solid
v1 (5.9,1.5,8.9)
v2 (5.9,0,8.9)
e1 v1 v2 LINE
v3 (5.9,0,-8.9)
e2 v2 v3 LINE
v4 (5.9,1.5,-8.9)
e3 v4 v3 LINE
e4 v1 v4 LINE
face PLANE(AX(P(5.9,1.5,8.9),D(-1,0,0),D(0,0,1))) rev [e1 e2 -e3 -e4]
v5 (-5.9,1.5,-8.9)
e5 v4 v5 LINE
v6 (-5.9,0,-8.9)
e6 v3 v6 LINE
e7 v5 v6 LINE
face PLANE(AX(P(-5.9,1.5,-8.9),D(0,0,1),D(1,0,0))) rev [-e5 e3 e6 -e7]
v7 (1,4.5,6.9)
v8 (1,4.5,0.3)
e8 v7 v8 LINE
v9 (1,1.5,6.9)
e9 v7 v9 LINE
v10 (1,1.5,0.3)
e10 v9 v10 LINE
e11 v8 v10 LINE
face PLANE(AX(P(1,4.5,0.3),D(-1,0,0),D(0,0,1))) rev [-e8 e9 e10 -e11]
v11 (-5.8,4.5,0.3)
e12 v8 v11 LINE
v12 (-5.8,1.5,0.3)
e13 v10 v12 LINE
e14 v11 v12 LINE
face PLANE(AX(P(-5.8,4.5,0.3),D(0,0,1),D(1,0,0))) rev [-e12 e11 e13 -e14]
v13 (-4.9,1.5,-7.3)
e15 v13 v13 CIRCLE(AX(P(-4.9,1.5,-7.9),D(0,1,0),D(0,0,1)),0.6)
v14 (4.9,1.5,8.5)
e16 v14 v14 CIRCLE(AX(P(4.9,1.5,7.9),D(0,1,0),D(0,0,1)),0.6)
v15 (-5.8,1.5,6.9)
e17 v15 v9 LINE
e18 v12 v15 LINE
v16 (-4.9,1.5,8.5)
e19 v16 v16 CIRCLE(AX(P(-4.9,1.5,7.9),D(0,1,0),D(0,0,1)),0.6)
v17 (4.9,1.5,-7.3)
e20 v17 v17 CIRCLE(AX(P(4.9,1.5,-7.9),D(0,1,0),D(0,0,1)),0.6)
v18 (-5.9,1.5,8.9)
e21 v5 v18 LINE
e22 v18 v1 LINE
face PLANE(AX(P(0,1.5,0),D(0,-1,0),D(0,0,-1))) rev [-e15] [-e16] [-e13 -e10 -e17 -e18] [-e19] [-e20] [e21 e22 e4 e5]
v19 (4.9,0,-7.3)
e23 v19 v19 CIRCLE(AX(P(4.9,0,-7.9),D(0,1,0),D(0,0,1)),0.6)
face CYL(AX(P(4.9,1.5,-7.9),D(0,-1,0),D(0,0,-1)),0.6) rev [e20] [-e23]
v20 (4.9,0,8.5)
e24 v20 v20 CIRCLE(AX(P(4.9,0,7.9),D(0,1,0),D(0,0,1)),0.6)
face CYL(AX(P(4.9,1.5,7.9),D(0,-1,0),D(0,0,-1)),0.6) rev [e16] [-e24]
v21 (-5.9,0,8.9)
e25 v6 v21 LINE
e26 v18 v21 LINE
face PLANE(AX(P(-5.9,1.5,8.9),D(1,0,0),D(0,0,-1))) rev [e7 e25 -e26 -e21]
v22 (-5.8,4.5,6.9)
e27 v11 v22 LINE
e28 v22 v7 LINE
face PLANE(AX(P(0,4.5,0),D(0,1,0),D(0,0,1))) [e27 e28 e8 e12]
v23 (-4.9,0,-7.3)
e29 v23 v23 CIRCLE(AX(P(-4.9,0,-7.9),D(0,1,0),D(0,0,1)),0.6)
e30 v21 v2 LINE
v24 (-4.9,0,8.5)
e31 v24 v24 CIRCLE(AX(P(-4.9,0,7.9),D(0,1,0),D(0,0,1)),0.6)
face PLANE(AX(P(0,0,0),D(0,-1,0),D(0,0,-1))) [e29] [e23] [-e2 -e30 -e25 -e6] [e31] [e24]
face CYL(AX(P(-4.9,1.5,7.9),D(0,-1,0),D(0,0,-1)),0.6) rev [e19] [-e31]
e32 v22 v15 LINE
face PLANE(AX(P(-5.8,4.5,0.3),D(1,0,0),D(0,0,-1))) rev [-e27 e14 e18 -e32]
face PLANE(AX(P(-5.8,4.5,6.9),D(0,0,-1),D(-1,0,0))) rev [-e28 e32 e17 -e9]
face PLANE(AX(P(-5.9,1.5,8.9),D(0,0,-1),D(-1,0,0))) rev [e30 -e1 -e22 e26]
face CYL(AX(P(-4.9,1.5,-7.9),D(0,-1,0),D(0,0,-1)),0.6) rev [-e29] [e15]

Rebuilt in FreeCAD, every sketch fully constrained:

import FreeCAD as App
import Part
import Sketcher


def add_polygon(sketch, points):
    """Adds a closed chain of lines whose ends are joined by coincident constraints."""
    first, n = sketch.GeometryCount, len(points)
    for a, b in zip(points, points[1:] + points[:1]):
        sketch.addGeometry(Part.LineSegment(App.Vector(*a, 0), App.Vector(*b, 0)), False)
    for i in range(n):
        sketch.addConstraint(Sketcher.Constraint("Coincident", first + i, 2, first + (i + 1) % n, 1))

doc = App.newDocument("Part")
body = doc.addObject("PartDesign::Body", "Body")

# Sketch on XZ plane
sketch1 = body.newObject("Sketcher::SketchObject", "Sketch")
sketch1.AttachmentSupport = (doc.getObject("XZ_Plane"), [""])
sketch1.MapMode = "FlatFace"
add_polygon(sketch1, [(-5.9, -8.9), (-5.9, 8.9), (5.9, 8.9), (5.9, -8.9)])  # lines 0-3
sketch1.addGeometry(Part.Circle(App.Vector(-4.9, 7.9, 0), App.Vector(0, 0, 1), 0.6), False)  # 4
sketch1.addGeometry(Part.Circle(App.Vector(4.9, 7.9, 0), App.Vector(0, 0, 1), 0.6), False)  # 5
sketch1.addGeometry(Part.Circle(App.Vector(-4.9, -7.9, 0), App.Vector(0, 0, 1), 0.6), False)  # 6
sketch1.addGeometry(Part.Circle(App.Vector(4.9, -7.9, 0), App.Vector(0, 0, 1), 0.6), False)  # 7
sketch1.addConstraint([
    Sketcher.Constraint("Vertical", 0),
    Sketcher.Constraint("Horizontal", 1),
    Sketcher.Constraint("Vertical", 2),
    Sketcher.Constraint("Horizontal", 3),
    Sketcher.Constraint("Equal", 4, 5),
    Sketcher.Constraint("Equal", 5, 6),
    Sketcher.Constraint("Equal", 6, 7),
    Sketcher.Constraint("Symmetric", 5, 3, 6, 3, -1, 1),
    Sketcher.Constraint("Symmetric", 4, 3, 7, 3, -1, 1),
    Sketcher.Constraint("Symmetric", 0, 2, 2, 2, -1, 1),
    Sketcher.Constraint("Symmetric", 4, 3, 5, 3, -2),
    Sketcher.Constraint("Diameter", 4, 1.2),
    Sketcher.Constraint("DistanceX", 1, 1, 1, 2, 11.8),
    Sketcher.Constraint("DistanceY", 0, 1, 0, 2, 17.8),
    Sketcher.Constraint("DistanceX", 0, 2, 4, 3, 1.0),
    Sketcher.Constraint("DistanceY", 4, 3, 0, 2, 1.0),
])
pad1 = body.newObject("PartDesign::Pad", "Pad")
pad1.Profile = sketch1
pad1.Length = 1.5
pad1.Reversed = True

# Sketch on XZ plane
sketch2 = body.newObject("Sketcher::SketchObject", "Sketch001")
sketch2.AttachmentSupport = (doc.getObject("XZ_Plane"), [""])
sketch2.MapMode = "FlatFace"
sketch2.AttachmentOffset = App.Placement(App.Vector(0, 0, -1.5), App.Rotation())
add_polygon(sketch2, [(-6, 0), (-6, 7), (1, 7), (1, 0)])  # lines 0-3
sketch2.addConstraint([
    Sketcher.Constraint("Vertical", 0),
    Sketcher.Constraint("Horizontal", 1),
    Sketcher.Constraint("Vertical", 2),
    Sketcher.Constraint("Horizontal", 3),
    Sketcher.Constraint("DistanceX", 1, 1, 1, 2, 6.8),
    Sketcher.Constraint("DistanceY", 0, 1, 0, 2, 6.6),
    Sketcher.Constraint("DistanceX", -1, 1, 1, 2, 1.0),
    Sketcher.Constraint("DistanceY", -1, 1, 0, 2, 6.9),
])
pad2 = body.newObject("PartDesign::Pad", "Pad001")
pad2.Profile = sketch2
pad2.Length = 3
pad2.Reversed = True

doc.recompute()
